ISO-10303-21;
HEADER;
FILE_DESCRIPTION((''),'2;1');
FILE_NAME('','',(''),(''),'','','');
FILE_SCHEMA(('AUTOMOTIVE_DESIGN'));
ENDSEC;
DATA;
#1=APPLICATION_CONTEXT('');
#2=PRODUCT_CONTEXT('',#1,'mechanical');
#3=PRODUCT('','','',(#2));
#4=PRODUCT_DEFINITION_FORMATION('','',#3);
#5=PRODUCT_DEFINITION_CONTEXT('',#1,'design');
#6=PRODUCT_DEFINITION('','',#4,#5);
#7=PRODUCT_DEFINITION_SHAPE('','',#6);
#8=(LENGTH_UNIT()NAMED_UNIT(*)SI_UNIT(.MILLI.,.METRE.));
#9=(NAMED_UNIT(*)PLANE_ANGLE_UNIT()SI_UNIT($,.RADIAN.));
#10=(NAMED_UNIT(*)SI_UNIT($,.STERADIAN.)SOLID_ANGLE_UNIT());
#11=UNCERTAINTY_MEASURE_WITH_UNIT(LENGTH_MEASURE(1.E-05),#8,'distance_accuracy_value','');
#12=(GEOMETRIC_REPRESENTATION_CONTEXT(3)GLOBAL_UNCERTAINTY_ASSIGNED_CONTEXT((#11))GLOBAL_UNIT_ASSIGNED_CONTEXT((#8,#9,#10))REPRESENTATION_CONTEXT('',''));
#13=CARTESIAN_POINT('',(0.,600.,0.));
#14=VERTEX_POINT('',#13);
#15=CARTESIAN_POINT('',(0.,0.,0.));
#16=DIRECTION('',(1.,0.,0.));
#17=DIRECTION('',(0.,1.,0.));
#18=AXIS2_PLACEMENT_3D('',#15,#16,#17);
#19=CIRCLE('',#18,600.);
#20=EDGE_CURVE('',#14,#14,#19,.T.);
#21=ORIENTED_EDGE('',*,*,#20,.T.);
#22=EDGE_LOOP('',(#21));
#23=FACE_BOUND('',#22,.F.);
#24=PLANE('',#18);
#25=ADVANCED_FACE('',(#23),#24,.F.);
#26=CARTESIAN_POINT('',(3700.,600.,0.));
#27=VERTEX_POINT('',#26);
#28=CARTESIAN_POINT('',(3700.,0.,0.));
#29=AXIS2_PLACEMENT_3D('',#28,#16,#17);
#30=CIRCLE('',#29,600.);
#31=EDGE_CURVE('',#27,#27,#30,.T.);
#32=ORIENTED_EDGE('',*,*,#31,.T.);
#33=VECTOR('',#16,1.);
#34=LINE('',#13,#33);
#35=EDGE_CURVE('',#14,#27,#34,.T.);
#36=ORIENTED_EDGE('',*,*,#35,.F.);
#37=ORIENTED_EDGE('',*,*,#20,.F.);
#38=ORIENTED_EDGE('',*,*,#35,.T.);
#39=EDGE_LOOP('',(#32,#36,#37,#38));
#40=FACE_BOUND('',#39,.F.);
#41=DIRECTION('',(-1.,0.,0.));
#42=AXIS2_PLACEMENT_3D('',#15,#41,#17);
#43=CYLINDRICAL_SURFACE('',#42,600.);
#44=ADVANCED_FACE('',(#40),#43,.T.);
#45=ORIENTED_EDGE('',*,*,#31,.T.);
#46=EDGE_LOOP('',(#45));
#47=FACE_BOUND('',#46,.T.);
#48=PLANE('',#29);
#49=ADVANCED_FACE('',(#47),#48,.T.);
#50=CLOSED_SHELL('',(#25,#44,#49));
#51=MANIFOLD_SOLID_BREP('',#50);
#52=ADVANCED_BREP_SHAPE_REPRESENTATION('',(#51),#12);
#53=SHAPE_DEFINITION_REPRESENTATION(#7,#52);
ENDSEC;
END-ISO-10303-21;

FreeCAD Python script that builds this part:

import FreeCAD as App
import Part
import Sketcher

V = App.Vector
Q = App.Units.Quantity

doc = App.newDocument("Part")
body = doc.addObject("PartDesign::Body", "Body")

sketch1 = doc.addObject("Sketcher::SketchObject", "Sketch")
body.addObject(sketch1)
sketch1.AttachmentSupport = (doc.YZ_Plane, [""])
sketch1.MapMode = "FlatFace"
sketch1.addGeometry(Part.Circle(V(0, 0, 0), V(0, 0, 1), 600), False)
sketch1.addConstraint(Sketcher.Constraint("Coincident", 0, 3, -1, 1))
sketch1.addConstraint(Sketcher.Constraint("Diameter", 0, Q("1200 mm")))
pad1 = doc.addObject("PartDesign::Pad", "Pad")
body.addObject(pad1)
pad1.Profile = sketch1
pad1.Length = 3700

doc.recompute()
